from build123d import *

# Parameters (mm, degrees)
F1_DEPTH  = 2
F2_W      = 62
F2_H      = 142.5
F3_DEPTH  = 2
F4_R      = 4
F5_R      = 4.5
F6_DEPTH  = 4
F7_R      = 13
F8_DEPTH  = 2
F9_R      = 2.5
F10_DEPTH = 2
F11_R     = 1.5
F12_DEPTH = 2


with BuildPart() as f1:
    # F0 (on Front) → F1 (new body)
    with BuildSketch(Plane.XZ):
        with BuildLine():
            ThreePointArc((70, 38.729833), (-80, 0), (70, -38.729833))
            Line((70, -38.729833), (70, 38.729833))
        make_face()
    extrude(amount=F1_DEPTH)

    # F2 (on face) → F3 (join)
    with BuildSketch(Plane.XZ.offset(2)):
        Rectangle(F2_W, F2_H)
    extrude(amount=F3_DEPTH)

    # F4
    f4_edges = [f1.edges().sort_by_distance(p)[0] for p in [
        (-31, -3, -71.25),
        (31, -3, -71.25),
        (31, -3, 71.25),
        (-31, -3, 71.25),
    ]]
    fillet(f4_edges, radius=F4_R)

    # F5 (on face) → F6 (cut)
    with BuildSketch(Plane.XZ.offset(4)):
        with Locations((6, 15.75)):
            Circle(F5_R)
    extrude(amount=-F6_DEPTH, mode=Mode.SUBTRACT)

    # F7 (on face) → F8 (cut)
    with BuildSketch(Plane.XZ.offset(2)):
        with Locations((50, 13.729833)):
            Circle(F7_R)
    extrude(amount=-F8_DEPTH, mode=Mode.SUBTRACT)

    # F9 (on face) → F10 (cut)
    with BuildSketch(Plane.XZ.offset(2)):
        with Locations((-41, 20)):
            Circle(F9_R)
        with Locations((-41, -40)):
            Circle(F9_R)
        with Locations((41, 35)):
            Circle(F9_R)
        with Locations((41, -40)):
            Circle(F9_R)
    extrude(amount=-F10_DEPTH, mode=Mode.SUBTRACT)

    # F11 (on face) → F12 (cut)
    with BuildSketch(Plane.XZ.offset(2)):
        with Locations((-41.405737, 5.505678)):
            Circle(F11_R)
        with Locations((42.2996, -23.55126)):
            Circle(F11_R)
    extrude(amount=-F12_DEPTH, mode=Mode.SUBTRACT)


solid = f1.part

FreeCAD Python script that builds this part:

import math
import FreeCAD as App
import Part
import Sketcher
from FreeCAD import Vector
Q = App.Units.Quantity


def edges_at(feature, points):
    """Names of the edges that pass closest to the given points."""
    edges = feature.Shape.Edges
    near = lambda p: min(range(len(edges)), key=lambda i: edges[i].distToShape(Part.Vertex(*p))[0])
    return sorted({f"Edge{near(p) + 1}" for p in points})


def add_polygon(sketch, points):
    """Adds a closed chain of lines whose ends are joined by coincident constraints."""
    first, n = sketch.GeometryCount, len(points)
    for a, b in zip(points, points[1:] + points[:1]):
        sketch.addGeometry(Part.LineSegment(App.Vector(*a, 0), App.Vector(*b, 0)), False)
    for i in range(n):
        sketch.addConstraint(Sketcher.Constraint("Coincident", first + i, 2, first + (i + 1) % n, 1))

doc = App.newDocument("Part")
params = doc.addObject("Spreadsheet::Sheet", "Params")
for row, (alias, value) in enumerate([
    ("sketch1_radius", "80 mm"),
    ("pad1_length", "2 mm"),
    ("sketch2_width", "62 mm"),
    ("sketch2_height", "142.5 mm"),
    ("pad2_length", "2 mm"),
    ("fillet_radius", "4 mm"),
    ("sketch3_diameter", "9 mm"),
    ("pocket1_length", "4 mm"),
    ("sketch4_diameter", "26 mm"),
    ("pocket2_length", "2 mm"),
    ("sketch5_diameter", "5 mm"),
    ("pocket3_length", "2 mm"),
    ("sketch6_diameter", "3 mm"),
    ("pocket4_length", "2 mm"),
], start=1):
    params.set(f"A{row}", alias)
    params.set(f"B{row}", "=" + value)
    params.setAlias(f"B{row}", alias)

body = doc.addObject("PartDesign::Body", "Body")

sketch1 = body.newObject("Sketcher::SketchObject", "Sketch")
sketch1.AttachmentSupport = (doc.getObject("XZ_Plane"), [""])
sketch1.MapMode = "FlatFace"
sketch1.addGeometry([
    Part.ArcOfCircle(Part.Circle(Vector(0, 0, 0), Vector(0, 0, 1), 80), math.radians(28.955024), math.radians(331.044976)),
    Part.LineSegment(Vector(70, -38.729833, 0), Vector(70, 38.729833, 0)),
], False)
sketch1.addConstraint([
    Sketcher.Constraint("Coincident", 0, 1, 1, 2),
    Sketcher.Constraint("Coincident", 1, 1, 0, 2),
    Sketcher.Constraint("Vertical", 1),
    Sketcher.Constraint("Coincident", 0, 3, -1, 1),
    Sketcher.Constraint("Radius", 0, Q("80 mm")),
    Sketcher.Constraint("DistanceX", -1, 1, 0, 1, Q("70 mm")),
])
sketch1.setExpression("Constraints[4]", "Params.sketch1_radius")
pad1 = body.newObject("PartDesign::Pad", "Pad")
pad1.Profile = sketch1
pad1.setExpression("Length", "Params.pad1_length")

sketch2 = body.newObject("Sketcher::SketchObject", "Sketch001")
sketch2.AttachmentSupport = (doc.getObject("XZ_Plane"), [""])
sketch2.MapMode = "FlatFace"
sketch2.AttachmentOffset = App.Placement(Vector(0, 0, 2), App.Rotation())
add_polygon(sketch2, [(-31, 71.25), (-31, -71.25), (31, -71.25), (31, 71.25)])
sketch2.addConstraint([
    Sketcher.Constraint("Vertical", 0),
    Sketcher.Constraint("Horizontal", 1),
    Sketcher.Constraint("Vertical", 2),
    Sketcher.Constraint("Horizontal", 3),
    Sketcher.Constraint("Symmetric", 0, 2, 2, 2, -1, 1),
    Sketcher.Constraint("DistanceX", 1, 1, 1, 2, Q("62 mm")),
    Sketcher.Constraint("DistanceY", 0, 2, 0, 1, Q("142.5 mm")),
])
sketch2.setExpression("Constraints[9]", "Params.sketch2_width")
sketch2.setExpression("Constraints[10]", "Params.sketch2_height")
pad2 = body.newObject("PartDesign::Pad", "Pad001")
pad2.Profile = sketch2
pad2.setExpression("Length", "Params.pad2_length")
doc.recompute()

fillet = body.newObject("PartDesign::Fillet", "Fillet")
fillet.Base = (pad2, edges_at(pad2, [
    (-31, -3, -71.25),
    (31, -3, -71.25),
    (31, -3, 71.25),
    (-31, -3, 71.25),
]))
fillet.setExpression("Radius", "Params.fillet_radius")

sketch3 = body.newObject("Sketcher::SketchObject", "Sketch002")
sketch3.AttachmentSupport = (doc.getObject("XZ_Plane"), [""])
sketch3.MapMode = "FlatFace"
sketch3.AttachmentOffset = App.Placement(Vector(0, 0, 4), App.Rotation())
sketch3.addGeometry(Part.Circle(Vector(6, 15.75, 0), Vector(0, 0, 1), 4.5), False)
sketch3.addConstraint([
    Sketcher.Constraint("Diameter", 0, Q("9 mm")),
    Sketcher.Constraint("DistanceX", -1, 1, 0, 3, Q("6 mm")),
    Sketcher.Constraint("DistanceY", -1, 1, 0, 3, Q("15.75 mm")),
])
sketch3.setExpression("Constraints[0]", "Params.sketch3_diameter")
pocket1 = body.newObject("PartDesign::Pocket", "Pocket")
pocket1.Profile = sketch3
pocket1.setExpression("Length", "Params.pocket1_length")

sketch4 = body.newObject("Sketcher::SketchObject", "Sketch003")
sketch4.AttachmentSupport = (doc.getObject("XZ_Plane"), [""])
sketch4.MapMode = "FlatFace"
sketch4.AttachmentOffset = App.Placement(Vector(0, 0, 2), App.Rotation())
sketch4.addGeometry(Part.Circle(Vector(50, 13.729833, 0), Vector(0, 0, 1), 13), False)
sketch4.addConstraint([
    Sketcher.Constraint("Diameter", 0, Q("26 mm")),
    Sketcher.Constraint("DistanceX", -1, 1, 0, 3, Q("50 mm")),
    Sketcher.Constraint("DistanceY", -1, 1, 0, 3, Q("13.729833 mm")),
])
sketch4.setExpression("Constraints[0]", "Params.sketch4_diameter")
pocket2 = body.newObject("PartDesign::Pocket", "Pocket001")
pocket2.Profile = sketch4
pocket2.setExpression("Length", "Params.pocket2_length")

sketch5 = body.newObject("Sketcher::SketchObject", "Sketch004")
sketch5.AttachmentSupport = (doc.getObject("XZ_Plane"), [""])
sketch5.MapMode = "FlatFace"
sketch5.AttachmentOffset = App.Placement(Vector(0, 0, 2), App.Rotation())
sketch5.addGeometry([
    Part.Circle(Vector(-41, 20, 0), Vector(0, 0, 1), 2.5),
    Part.Circle(Vector(-41, -40, 0), Vector(0, 0, 1), 2.5),
    Part.Circle(Vector(41, 35, 0), Vector(0, 0, 1), 2.5),
    Part.Circle(Vector(41, -40, 0), Vector(0, 0, 1), 2.5),
], False)
sketch5.addConstraint([
    Sketcher.Constraint("Equal", 0, 1),
    Sketcher.Constraint("Equal", 1, 2),
    Sketcher.Constraint("Equal", 2, 3),
    Sketcher.Constraint("Symmetric", 1, 3, 3, 3, -2),
    Sketcher.Constraint("Vertical", 0, 3, 1, 3),
    Sketcher.Constraint("Vertical", 2, 3, 3, 3),
    Sketcher.Constraint("Diameter", 0, Q("5 mm")),
    Sketcher.Constraint("DistanceX", 0, 3, -1, 1, Q("41 mm")),
    Sketcher.Constraint("DistanceY", -1, 1, 0, 3, Q("20 mm")),
    Sketcher.Constraint("DistanceY", 1, 3, -1, 1, Q("40 mm")),
    Sketcher.Constraint("DistanceY", -1, 1, 2, 3, Q("35 mm")),
])
sketch5.setExpression("Constraints[6]", "Params.sketch5_diameter")
pocket3 = body.newObject("PartDesign::Pocket", "Pocket002")
pocket3.Profile = sketch5
pocket3.setExpression("Length", "Params.pocket3_length")

sketch6 = body.newObject("Sketcher::SketchObject", "Sketch005")
sketch6.AttachmentSupport = (doc.getObject("XZ_Plane"), [""])
sketch6.MapMode = "FlatFace"
sketch6.AttachmentOffset = App.Placement(Vector(0, 0, 2), App.Rotation())
sketch6.addGeometry([
    Part.Circle(Vector(-41.405737, 5.505678, 0), Vector(0, 0, 1), 1.5),
    Part.Circle(Vector(42.2996, -23.55126, 0), Vector(0, 0, 1), 1.5),
], False)
sketch6.addConstraint([
    Sketcher.Constraint("Equal", 0, 1),
    Sketcher.Constraint("Diameter", 0, Q("3 mm")),
    Sketcher.Constraint("DistanceX", -1, 1, 1, 3, Q("42.2996 mm")),
    Sketcher.Constraint("DistanceY", 1, 3, -1, 1, Q("23.55126 mm")),
    Sketcher.Constraint("DistanceX", 0, 3, -1, 1, Q("41.405737 mm")),
    Sketcher.Constraint("DistanceY", -1, 1, 0, 3, Q("5.505678 mm")),
])
sketch6.setExpression("Constraints[1]", "Params.sketch6_diameter")
pocket4 = body.newObject("PartDesign::Pocket", "Pocket003")
pocket4.Profile = sketch6
pocket4.setExpression("Length", "Params.pocket4_length")

doc.recompute()
